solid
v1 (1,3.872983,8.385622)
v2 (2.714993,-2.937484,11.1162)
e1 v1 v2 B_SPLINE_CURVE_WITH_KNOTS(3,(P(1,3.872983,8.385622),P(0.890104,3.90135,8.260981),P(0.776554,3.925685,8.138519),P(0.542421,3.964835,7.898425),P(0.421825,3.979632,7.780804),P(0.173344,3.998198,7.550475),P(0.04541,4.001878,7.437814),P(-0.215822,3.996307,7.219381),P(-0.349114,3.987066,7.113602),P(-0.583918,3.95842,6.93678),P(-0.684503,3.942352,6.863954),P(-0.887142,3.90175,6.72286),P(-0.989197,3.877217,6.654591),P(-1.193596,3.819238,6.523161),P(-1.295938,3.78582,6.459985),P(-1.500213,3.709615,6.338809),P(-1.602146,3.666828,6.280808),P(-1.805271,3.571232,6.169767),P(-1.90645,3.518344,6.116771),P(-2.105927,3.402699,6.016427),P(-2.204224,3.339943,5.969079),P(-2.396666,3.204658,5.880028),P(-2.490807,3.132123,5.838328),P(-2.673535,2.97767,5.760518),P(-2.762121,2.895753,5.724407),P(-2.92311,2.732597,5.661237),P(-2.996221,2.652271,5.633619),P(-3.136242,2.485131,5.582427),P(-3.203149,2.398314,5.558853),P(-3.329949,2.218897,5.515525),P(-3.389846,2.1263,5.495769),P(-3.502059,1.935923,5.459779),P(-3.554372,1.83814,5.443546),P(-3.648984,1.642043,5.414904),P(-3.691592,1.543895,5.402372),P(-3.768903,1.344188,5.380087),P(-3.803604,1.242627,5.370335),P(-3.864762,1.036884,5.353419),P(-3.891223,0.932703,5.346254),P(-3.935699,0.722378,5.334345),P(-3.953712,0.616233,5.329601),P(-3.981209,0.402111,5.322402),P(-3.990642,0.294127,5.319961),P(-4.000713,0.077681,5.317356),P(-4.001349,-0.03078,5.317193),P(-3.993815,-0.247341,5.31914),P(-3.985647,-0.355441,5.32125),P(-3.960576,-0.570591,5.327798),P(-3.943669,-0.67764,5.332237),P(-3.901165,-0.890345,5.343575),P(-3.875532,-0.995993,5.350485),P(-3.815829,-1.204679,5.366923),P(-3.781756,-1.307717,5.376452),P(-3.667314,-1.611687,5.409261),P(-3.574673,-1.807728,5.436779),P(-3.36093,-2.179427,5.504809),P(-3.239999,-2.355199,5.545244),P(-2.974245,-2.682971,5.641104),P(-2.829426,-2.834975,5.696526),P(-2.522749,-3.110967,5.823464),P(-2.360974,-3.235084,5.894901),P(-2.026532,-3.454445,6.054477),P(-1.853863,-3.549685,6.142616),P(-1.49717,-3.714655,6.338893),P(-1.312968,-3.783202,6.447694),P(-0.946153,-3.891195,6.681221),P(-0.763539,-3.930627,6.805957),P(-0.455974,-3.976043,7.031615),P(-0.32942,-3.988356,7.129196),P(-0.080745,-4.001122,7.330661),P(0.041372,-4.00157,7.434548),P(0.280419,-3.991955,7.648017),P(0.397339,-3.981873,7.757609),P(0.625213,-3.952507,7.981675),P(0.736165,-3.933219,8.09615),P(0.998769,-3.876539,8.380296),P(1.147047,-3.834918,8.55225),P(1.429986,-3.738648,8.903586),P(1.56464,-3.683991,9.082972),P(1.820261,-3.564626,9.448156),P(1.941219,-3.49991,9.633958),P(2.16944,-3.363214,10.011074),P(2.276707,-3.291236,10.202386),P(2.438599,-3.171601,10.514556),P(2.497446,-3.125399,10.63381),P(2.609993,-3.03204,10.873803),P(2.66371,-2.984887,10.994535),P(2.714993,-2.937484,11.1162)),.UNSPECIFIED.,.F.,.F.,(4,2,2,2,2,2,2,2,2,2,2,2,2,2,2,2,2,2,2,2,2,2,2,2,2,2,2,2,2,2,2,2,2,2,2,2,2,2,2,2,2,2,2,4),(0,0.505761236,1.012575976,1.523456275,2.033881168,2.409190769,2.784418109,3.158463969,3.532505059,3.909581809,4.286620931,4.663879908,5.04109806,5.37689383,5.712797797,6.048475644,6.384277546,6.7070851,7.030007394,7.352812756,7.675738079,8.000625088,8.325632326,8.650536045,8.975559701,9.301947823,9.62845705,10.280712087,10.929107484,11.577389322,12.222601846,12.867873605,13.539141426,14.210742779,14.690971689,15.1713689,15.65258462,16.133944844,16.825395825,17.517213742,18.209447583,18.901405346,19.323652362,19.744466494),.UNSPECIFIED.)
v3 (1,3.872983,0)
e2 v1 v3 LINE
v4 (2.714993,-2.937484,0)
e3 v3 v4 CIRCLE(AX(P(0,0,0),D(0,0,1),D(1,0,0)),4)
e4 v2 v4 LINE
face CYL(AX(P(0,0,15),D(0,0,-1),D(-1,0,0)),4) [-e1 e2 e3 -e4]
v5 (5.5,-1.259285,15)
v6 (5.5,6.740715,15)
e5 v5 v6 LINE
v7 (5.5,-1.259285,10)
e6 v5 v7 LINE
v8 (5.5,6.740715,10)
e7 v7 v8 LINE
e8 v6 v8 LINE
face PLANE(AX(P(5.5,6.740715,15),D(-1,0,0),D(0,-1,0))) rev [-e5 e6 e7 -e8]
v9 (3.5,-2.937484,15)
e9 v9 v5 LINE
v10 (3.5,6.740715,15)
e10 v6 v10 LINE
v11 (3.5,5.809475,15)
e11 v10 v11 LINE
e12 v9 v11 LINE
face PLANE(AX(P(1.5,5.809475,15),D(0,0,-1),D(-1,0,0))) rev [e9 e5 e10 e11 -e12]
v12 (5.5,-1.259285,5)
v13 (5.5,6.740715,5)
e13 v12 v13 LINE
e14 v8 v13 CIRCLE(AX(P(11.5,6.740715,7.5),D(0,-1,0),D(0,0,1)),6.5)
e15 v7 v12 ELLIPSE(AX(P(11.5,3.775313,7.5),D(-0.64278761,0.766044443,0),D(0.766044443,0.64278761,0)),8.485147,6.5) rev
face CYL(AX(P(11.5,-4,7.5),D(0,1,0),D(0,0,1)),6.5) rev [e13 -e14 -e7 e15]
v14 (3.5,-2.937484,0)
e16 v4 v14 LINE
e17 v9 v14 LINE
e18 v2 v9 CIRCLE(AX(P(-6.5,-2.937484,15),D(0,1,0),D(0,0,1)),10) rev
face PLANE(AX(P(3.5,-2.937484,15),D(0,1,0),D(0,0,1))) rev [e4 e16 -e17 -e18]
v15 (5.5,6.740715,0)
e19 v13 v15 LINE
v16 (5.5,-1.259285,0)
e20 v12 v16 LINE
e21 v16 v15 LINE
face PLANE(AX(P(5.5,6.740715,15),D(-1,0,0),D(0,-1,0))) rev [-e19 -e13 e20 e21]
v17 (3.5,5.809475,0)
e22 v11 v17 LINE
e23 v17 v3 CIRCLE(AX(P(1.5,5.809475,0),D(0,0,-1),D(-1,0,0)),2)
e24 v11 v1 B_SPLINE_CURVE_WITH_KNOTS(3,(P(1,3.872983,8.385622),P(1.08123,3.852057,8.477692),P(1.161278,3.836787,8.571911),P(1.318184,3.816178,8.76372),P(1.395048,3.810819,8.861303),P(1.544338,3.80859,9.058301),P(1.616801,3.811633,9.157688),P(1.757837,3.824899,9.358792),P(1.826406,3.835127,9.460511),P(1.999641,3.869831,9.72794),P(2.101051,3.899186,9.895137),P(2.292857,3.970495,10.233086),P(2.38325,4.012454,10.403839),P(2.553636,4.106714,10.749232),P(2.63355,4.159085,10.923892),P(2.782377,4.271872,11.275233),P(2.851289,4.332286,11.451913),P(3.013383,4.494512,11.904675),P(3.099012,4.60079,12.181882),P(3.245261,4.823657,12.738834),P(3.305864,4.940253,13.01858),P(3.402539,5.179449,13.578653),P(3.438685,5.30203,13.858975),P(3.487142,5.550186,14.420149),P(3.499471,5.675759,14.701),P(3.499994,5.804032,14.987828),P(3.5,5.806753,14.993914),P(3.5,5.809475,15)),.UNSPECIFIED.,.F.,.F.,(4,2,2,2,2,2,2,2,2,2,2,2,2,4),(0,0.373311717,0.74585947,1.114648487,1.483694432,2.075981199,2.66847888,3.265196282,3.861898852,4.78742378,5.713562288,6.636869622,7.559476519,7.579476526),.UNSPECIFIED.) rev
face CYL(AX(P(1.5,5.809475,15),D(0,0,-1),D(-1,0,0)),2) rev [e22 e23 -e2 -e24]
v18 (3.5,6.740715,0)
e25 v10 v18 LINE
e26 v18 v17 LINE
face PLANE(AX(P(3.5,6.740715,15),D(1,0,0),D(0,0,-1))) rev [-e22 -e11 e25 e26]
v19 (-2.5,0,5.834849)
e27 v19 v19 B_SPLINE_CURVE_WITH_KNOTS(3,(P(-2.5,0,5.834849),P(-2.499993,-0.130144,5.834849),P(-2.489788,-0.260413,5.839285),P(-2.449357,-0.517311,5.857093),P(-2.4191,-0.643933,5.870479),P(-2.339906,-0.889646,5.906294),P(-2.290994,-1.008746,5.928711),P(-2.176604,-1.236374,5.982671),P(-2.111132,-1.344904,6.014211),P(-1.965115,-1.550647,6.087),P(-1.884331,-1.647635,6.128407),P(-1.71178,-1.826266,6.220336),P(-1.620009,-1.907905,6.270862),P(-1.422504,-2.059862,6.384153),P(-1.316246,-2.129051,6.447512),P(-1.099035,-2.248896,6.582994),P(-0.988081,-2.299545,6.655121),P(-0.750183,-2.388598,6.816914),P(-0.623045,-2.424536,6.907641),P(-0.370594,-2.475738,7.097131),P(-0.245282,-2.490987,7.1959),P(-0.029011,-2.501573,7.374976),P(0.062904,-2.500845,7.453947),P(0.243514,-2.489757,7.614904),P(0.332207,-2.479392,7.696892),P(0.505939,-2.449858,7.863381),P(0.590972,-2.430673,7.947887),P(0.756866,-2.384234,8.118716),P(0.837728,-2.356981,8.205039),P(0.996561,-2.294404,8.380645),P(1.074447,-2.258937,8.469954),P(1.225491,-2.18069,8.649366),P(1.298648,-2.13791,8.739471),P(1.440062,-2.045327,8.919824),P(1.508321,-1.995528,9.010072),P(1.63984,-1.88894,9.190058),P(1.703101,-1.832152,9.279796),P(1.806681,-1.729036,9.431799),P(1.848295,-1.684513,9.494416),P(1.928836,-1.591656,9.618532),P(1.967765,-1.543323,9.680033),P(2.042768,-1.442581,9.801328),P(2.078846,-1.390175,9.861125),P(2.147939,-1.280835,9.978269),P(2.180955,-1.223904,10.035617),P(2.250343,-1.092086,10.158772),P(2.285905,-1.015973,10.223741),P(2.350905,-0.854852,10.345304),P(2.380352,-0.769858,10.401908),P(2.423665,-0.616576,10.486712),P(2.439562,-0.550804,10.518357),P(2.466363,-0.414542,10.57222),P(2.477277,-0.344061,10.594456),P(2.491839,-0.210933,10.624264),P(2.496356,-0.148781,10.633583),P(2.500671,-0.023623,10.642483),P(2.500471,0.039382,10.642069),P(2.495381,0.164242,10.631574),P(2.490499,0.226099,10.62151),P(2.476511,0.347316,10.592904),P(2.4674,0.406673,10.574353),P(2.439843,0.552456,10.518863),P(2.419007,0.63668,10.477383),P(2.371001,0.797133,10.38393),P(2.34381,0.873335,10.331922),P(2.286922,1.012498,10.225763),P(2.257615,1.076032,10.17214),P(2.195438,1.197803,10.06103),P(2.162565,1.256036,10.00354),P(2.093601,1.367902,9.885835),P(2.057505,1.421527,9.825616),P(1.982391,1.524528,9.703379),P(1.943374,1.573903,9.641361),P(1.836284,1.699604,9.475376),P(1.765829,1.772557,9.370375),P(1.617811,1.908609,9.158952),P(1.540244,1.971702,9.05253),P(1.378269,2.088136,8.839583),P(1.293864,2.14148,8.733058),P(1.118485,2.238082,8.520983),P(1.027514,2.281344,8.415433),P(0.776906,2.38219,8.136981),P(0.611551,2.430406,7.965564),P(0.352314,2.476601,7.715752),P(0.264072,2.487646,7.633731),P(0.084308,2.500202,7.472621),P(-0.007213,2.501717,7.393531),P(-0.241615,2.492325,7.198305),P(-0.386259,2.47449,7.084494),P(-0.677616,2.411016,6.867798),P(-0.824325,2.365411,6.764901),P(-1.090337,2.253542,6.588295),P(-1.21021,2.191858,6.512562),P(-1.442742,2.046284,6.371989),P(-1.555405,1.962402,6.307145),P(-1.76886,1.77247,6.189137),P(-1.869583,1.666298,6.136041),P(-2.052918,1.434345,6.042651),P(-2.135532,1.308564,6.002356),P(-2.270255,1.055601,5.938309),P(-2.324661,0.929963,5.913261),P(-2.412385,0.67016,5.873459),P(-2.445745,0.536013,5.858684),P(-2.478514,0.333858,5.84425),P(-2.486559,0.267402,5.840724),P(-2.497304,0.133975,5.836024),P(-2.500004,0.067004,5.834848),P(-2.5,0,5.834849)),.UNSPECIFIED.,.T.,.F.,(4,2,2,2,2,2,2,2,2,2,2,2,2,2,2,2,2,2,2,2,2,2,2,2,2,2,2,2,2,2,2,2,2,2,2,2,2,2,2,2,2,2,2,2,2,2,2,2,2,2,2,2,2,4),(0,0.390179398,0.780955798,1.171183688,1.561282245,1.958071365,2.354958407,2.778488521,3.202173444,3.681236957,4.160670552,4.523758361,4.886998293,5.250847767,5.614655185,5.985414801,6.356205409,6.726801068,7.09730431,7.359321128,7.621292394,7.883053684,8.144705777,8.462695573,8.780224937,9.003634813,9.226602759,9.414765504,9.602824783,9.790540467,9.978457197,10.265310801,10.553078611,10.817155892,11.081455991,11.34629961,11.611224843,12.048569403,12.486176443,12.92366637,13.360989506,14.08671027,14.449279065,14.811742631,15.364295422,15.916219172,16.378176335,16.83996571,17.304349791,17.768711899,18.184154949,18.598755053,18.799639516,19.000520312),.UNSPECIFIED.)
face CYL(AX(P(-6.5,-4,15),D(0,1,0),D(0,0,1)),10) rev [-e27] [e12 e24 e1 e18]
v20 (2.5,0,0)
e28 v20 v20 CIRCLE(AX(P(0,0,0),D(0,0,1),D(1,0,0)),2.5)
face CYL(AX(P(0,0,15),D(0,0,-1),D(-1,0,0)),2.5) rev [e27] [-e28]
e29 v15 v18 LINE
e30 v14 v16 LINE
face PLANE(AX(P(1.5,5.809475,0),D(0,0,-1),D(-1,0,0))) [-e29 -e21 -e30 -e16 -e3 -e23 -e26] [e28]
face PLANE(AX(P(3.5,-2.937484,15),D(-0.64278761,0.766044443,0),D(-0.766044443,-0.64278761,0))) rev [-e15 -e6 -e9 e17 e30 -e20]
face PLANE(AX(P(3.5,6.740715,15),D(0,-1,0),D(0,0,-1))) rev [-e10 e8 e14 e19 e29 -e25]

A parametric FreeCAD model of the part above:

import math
import FreeCAD as App
import Part
import Sketcher
from FreeCAD import Vector
Q = App.Units.Quantity


def add_polygon(sketch, points):
    """Adds a closed chain of lines whose ends are joined by coincident constraints."""
    first, n = sketch.GeometryCount, len(points)
    for a, b in zip(points, points[1:] + points[:1]):
        sketch.addGeometry(Part.LineSegment(App.Vector(*a, 0), App.Vector(*b, 0)), False)
    for i in range(n):
        sketch.addConstraint(Sketcher.Constraint("Coincident", first + i, 2, first + (i + 1) % n, 1))

doc = App.newDocument("Part")
body = doc.addObject("PartDesign::Body", "Body")

# Sketch on XY plane
sketch1 = body.newObject("Sketcher::SketchObject", "Sketch")
sketch1.AttachmentSupport = (doc.getObject("XY_Plane"), [""])
sketch1.MapMode = "FlatFace"
sketch1.addGeometry([
    Part.LineSegment(Vector(3.5, -2.937484, 0), Vector(5.5, -1.259285, 0)),  # 0
    Part.LineSegment(Vector(5.5, -1.259285, 0), Vector(5.5, 6.740715, 0)),  # 1
    Part.LineSegment(Vector(5.5, 6.740715, 0), Vector(3.5, 6.740715, 0)),  # 2
    Part.LineSegment(Vector(3.5, 6.740715, 0), Vector(3.5, 5.809475, 0)),  # 3
    Part.ArcOfCircle(Part.Circle(Vector(1.5, 5.809475, 0), Vector(0, 0, 1), 2), math.radians(-104.477512), math.radians(0)),  # 4
    Part.ArcOfCircle(Part.Circle(Vector(0, 0, 0), Vector(0, 0, 1), 4), math.radians(75.522488), math.radians(312.745905)),  # 5
    Part.LineSegment(Vector(2.714993, -2.937484, 0), Vector(3.5, -2.937484, 0)),  # 6
    Part.Circle(Vector(0, 0, 0), Vector(0, 0, 1), 2.5),  # 7
], False)
sketch1.addConstraint([
    Sketcher.Constraint("Coincident", 0, 2, 1, 1),
    Sketcher.Constraint("Coincident", 1, 2, 2, 1),
    Sketcher.Constraint("Coincident", 2, 2, 3, 1),
    Sketcher.Constraint("Tangent", 3, 2, 4, 2),
    Sketcher.Constraint("Tangent", 4, 1, 5, 1),
    Sketcher.Constraint("Coincident", 5, 2, 6, 1),
    Sketcher.Constraint("Coincident", 6, 2, 0, 1),
    Sketcher.Constraint("Vertical", 1),
    Sketcher.Constraint("Horizontal", 2),
    Sketcher.Constraint("Vertical", 3),
    Sketcher.Constraint("Horizontal", 6),
    Sketcher.Constraint("Coincident", 5, 3, -1, 1),
    Sketcher.Constraint("Coincident", 7, 3, -1, 1),
    Sketcher.Constraint("Vertical", 3, 2, 6, 2),
    Sketcher.Constraint("Diameter", 7, 5.0),
    Sketcher.Constraint("Radius", 4, 2.0),
    Sketcher.Constraint("Radius", 5, 4.0),
    Sketcher.Constraint("DistanceX", 2, 2, 2, 1, 2.0),
    Sketcher.Constraint("DistanceY", 1, 1, 1, 2, 8.0),
    Sketcher.Constraint("Angle", 0, Q("40 deg")),
    Sketcher.Constraint("DistanceX", -1, 1, 4, 1, 1.0),
    Sketcher.Constraint("DistanceY", 3, 2, 3, 1, 0.93124),
])
pad1 = body.newObject("PartDesign::Pad", "Pad")
pad1.Profile = sketch1
pad1.Length = 15

# Sketch on XZ plane
sketch2 = body.newObject("Sketcher::SketchObject", "Sketch001")
sketch2.AttachmentSupport = (doc.getObject("XZ_Plane"), [""])
sketch2.MapMode = "FlatFace"
sketch2.AttachmentOffset = App.Placement(Vector(0, 0, -6.740715), App.Rotation())
add_polygon(sketch2, [(-7.075, -3.075), (-7.075, 18.075), (8.575, 18.075), (8.575, -3.075)])  # lines 0-3
sketch2.addGeometry(Part.LineSegment(Vector(5.5, 10, 0), Vector(5.5, 15, 0)), False)  # 4
sketch2.addGeometry(Part.LineSegment(Vector(5.5, 15, 0), Vector(3.5, 15, 0)), False)  # 5
sketch2.addGeometry(Part.ArcOfCircle(Part.Circle(Vector(-6.5, 15, 0), Vector(0, 0, 1), 10), math.radians(-90), math.radians(0)), False)  # 6
sketch2.addGeometry(Part.LineSegment(Vector(-6.5, 5, 0), Vector(-4, 5, 0)), False)  # 7
sketch2.addGeometry(Part.LineSegment(Vector(-4, 5, 0), Vector(-4, 0, 0)), False)  # 8
sketch2.addGeometry(Part.LineSegment(Vector(-4, 0, 0), Vector(5.5, 0, 0)), False)  # 9
sketch2.addGeometry(Part.LineSegment(Vector(5.5, 0, 0), Vector(5.5, 5, 0)), False)  # 10
sketch2.addGeometry(Part.ArcOfCircle(Part.Circle(Vector(11.5, 7.5, 0), Vector(0, 0, 1), 6.5), math.radians(157.380135), math.radians(202.619865)), False)  # 11
sketch2.addConstraint([
    Sketcher.Constraint("Coincident", 4, 2, 5, 1),
    Sketcher.Constraint("Coincident", 5, 2, 6, 2),
    Sketcher.Constraint("Tangent", 6, 1, 7, 1),
    Sketcher.Constraint("Coincident", 7, 2, 8, 1),
    Sketcher.Constraint("Coincident", 8, 2, 9, 1),
    Sketcher.Constraint("Coincident", 9, 2, 10, 1),
    Sketcher.Constraint("Coincident", 10, 2, 11, 2),
    Sketcher.Constraint("Coincident", 11, 1, 4, 1),
    Sketcher.Constraint("Vertical", 0),
    Sketcher.Constraint("Horizontal", 1),
    Sketcher.Constraint("Vertical", 2),
    Sketcher.Constraint("Horizontal", 3),
    Sketcher.Constraint("Vertical", 4),
    Sketcher.Constraint("Horizontal", 5),
    Sketcher.Constraint("Horizontal", 7),
    Sketcher.Constraint("Vertical", 8),
    Sketcher.Constraint("Horizontal", 9),
    Sketcher.Constraint("Vertical", 10),
    Sketcher.Constraint("PointOnObject", 8, 2, -1),
    Sketcher.Constraint("Horizontal", 6, 3, 4, 2),
    Sketcher.Constraint("Horizontal", 7, 2, 10, 2),
    Sketcher.Constraint("Vertical", 4, 2, 9, 2),
    Sketcher.Constraint("Equal", 4, 8),
    Sketcher.Constraint("Radius", 6, 10.0),
    Sketcher.Constraint("Radius", 11, 6.5),
    Sketcher.Constraint("DistanceX", 5, 2, 5, 1, 2.0),
    Sketcher.Constraint("DistanceY", 4, 1, 4, 2, 5.0),
    Sketcher.Constraint("DistanceX", 7, 1, 7, 2, 2.5),
    Sketcher.Constraint("DistanceX", 7, 2, -1, 1, 4.0),
    Sketcher.Constraint("DistanceX", 1, 1, 1, 2, 15.65),
    Sketcher.Constraint("DistanceY", 0, 1, 0, 2, 21.15),
    Sketcher.Constraint("DistanceX", 0, 2, -1, 1, 7.075),
    Sketcher.Constraint("DistanceY", -1, 1, 0, 2, 18.075),
])
pocket1 = body.newObject("PartDesign::Pocket", "Pocket")
pocket1.Profile = sketch2
pocket1.Type = "ThroughAll"
pocket1.Reversed = True

doc.recompute()
